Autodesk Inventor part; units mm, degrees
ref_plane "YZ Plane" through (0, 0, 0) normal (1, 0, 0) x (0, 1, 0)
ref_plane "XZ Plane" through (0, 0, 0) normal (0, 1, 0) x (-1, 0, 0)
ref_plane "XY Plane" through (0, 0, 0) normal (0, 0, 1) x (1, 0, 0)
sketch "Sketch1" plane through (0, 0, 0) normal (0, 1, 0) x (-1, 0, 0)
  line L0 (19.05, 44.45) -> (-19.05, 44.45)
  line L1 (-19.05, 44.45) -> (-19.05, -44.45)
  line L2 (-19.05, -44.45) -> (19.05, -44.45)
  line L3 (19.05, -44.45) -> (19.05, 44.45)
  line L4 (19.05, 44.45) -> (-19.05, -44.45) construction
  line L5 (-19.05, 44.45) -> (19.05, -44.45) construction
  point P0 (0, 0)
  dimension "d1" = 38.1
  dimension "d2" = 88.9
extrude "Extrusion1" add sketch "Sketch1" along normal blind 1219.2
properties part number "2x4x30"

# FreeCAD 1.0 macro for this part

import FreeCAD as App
import Part
import Sketcher
from FreeCAD import Vector
Q = App.Units.Quantity

doc = App.newDocument("Part")
body = doc.addObject("PartDesign::Body", "Body")

sketch1 = body.newObject("Sketcher::SketchObject", "Sketch")
sketch1.AttachmentSupport = (doc.getObject("XZ_Plane"), [""])
sketch1.MapMode = "FlatFace"
sketch1.addGeometry([
    Part.LineSegment(Vector(-19, -44, 0), Vector(-19, 44, 0)),
    Part.LineSegment(Vector(-19, 44, 0), Vector(19, 44, 0)),
    Part.LineSegment(Vector(19, 44, 0), Vector(19, -44, 0)),
    Part.LineSegment(Vector(19, -44, 0), Vector(-19, -44, 0)),
], False)
sketch1.addConstraint([
    Sketcher.Constraint("Coincident", 0, 2, 1, 1),
    Sketcher.Constraint("Coincident", 1, 2, 2, 1),
    Sketcher.Constraint("Coincident", 2, 2, 3, 1),
    Sketcher.Constraint("Coincident", 3, 2, 0, 1),
    Sketcher.Constraint("Vertical", 0),
    Sketcher.Constraint("Horizontal", 1),
    Sketcher.Constraint("Vertical", 2),
    Sketcher.Constraint("Horizontal", 3),
    Sketcher.Constraint("Symmetric", 0, 2, 2, 2, -1, 1),
    Sketcher.Constraint("DistanceX", 1, 1, 1, 2, Q("1.5 in")),
    Sketcher.Constraint("DistanceY", 0, 1, 0, 2, Q("3.5 in")),
])
pad1 = body.newObject("PartDesign::Pad", "Pad")
pad1.Profile = sketch1
pad1.Length = Q("48 in")
pad1.Reversed = True

doc.recompute()
